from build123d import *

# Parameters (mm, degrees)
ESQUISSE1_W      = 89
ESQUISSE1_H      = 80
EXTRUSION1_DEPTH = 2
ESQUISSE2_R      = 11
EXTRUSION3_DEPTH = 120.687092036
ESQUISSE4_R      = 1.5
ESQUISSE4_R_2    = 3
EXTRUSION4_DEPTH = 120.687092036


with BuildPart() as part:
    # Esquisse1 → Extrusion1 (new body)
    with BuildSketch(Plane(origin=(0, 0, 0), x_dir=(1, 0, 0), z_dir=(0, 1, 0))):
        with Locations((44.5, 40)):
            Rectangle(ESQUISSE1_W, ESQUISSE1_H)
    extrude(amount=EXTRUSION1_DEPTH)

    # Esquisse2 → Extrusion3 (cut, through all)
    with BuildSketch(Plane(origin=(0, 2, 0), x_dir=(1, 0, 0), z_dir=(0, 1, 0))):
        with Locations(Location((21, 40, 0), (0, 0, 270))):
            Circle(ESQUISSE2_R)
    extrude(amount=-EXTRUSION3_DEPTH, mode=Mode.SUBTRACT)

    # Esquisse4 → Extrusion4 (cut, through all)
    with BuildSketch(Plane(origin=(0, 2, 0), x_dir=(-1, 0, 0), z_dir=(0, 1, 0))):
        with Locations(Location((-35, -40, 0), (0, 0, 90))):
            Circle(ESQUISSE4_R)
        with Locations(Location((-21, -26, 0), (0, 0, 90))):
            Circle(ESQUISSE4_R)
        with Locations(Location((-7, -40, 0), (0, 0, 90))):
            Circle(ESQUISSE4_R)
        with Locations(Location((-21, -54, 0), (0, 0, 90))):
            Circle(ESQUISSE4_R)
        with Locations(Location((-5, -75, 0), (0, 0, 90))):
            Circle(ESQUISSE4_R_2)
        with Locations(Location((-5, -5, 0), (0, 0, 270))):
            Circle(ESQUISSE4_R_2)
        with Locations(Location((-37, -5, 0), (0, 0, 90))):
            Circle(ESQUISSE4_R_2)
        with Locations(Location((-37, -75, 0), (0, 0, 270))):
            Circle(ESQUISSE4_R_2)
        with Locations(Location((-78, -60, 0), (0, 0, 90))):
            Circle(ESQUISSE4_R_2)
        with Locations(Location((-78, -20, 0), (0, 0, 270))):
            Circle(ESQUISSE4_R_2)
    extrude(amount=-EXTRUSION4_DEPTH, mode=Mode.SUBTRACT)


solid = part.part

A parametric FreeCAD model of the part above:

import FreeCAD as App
import Part
import Sketcher

doc = App.newDocument("Part")
body = doc.addObject("PartDesign::Body", "Body")

# Sketch on XZ plane
sketch1 = body.newObject("Sketcher::SketchObject", "Sketch")
sketch1.AttachmentSupport = (doc.getObject("XZ_Plane"), [""])
sketch1.MapMode = "FlatFace"
sketch1.addGeometry([
    Part.LineSegment(App.Vector(0, -80, 0), App.Vector(0, 0, 0)),
    Part.LineSegment(App.Vector(0, 0, 0), App.Vector(89, 0, 0)),
    Part.LineSegment(App.Vector(89, 0, 0), App.Vector(89, -80, 0)),
    Part.LineSegment(App.Vector(89, -80, 0), App.Vector(0, -80, 0)),
], False)
sketch1.addConstraint([
    Sketcher.Constraint("Coincident", 0, 2, 1, 1),
    Sketcher.Constraint("Coincident", 1, 2, 2, 1),
    Sketcher.Constraint("Coincident", 2, 2, 3, 1),
    Sketcher.Constraint("Coincident", 3, 2, 0, 1),
    Sketcher.Constraint("Vertical", 0),
    Sketcher.Constraint("Horizontal", 1),
    Sketcher.Constraint("Vertical", 2),
    Sketcher.Constraint("Horizontal", 3),
    Sketcher.Constraint("Coincident", 0, 2, -1, 1),
    Sketcher.Constraint("DistanceX", 1, 1, 1, 2, 89.0),
    Sketcher.Constraint("DistanceY", 0, 1, 0, 2, 80.0),
])
pad1 = body.newObject("PartDesign::Pad", "Pad")
pad1.Profile = sketch1
pad1.Length = 2
pad1.Reversed = True

# Sketch on XZ plane
sketch2 = body.newObject("Sketcher::SketchObject", "Sketch001")
sketch2.AttachmentSupport = (doc.getObject("XZ_Plane"), [""])
sketch2.MapMode = "FlatFace"
sketch2.AttachmentOffset = App.Placement(App.Vector(0, 0, -2), App.Rotation())
sketch2.addGeometry(Part.Circle(App.Vector(21, -40, 0), App.Vector(0, 0, 1), 11), False)
sketch2.addConstraint([
    Sketcher.Constraint("Diameter", 0, 22.0),
    Sketcher.Constraint("DistanceX", -1, 1, 0, 3, 21.0),
    Sketcher.Constraint("DistanceY", 0, 3, -1, 1, 40.0),
])
pocket1 = body.newObject("PartDesign::Pocket", "Pocket")
pocket1.Profile = sketch2
pocket1.Type = "ThroughAll"
pocket1.Reversed = True

# Sketch on XZ plane
sketch3 = body.newObject("Sketcher::SketchObject", "Sketch002")
sketch3.AttachmentSupport = (doc.getObject("XZ_Plane"), [""])
sketch3.MapMode = "FlatFace"
sketch3.AttachmentOffset = App.Placement(App.Vector(0, 0, -2), App.Rotation())
sketch3.addGeometry([
    Part.Circle(App.Vector(35, -40, 0), App.Vector(0, 0, 1), 1.5),  # 0
    Part.Circle(App.Vector(21, -26, 0), App.Vector(0, 0, 1), 1.5),  # 1
    Part.Circle(App.Vector(7, -40, 0), App.Vector(0, 0, 1), 1.5),  # 2
    Part.Circle(App.Vector(21, -54, 0), App.Vector(0, 0, 1), 1.5),  # 3
    Part.Circle(App.Vector(5, -75, 0), App.Vector(0, 0, 1), 3),  # 4
    Part.Circle(App.Vector(5, -5, 0), App.Vector(0, 0, 1), 3),  # 5
    Part.Circle(App.Vector(37, -5, 0), App.Vector(0, 0, 1), 3),  # 6
    Part.Circle(App.Vector(37, -75, 0), App.Vector(0, 0, 1), 3),  # 7
    Part.Circle(App.Vector(78, -60, 0), App.Vector(0, 0, 1), 3),  # 8
    Part.Circle(App.Vector(78, -20, 0), App.Vector(0, 0, 1), 3),  # 9
], False)
sketch3.addConstraint([
    Sketcher.Constraint("Equal", 0, 1),
    Sketcher.Constraint("Equal", 1, 2),
    Sketcher.Constraint("Equal", 2, 3),
    Sketcher.Constraint("Equal", 4, 5),
    Sketcher.Constraint("Equal", 5, 6),
    Sketcher.Constraint("Equal", 6, 7),
    Sketcher.Constraint("Equal", 7, 8),
    Sketcher.Constraint("Equal", 8, 9),
    Sketcher.Constraint("Horizontal", 0, 3, 2, 3),
    Sketcher.Constraint("Horizontal", 5, 3, 6, 3),
    Sketcher.Constraint("Horizontal", 4, 3, 7, 3),
    Sketcher.Constraint("Vertical", 1, 3, 3, 3),
    Sketcher.Constraint("Vertical", 4, 3, 5, 3),
    Sketcher.Constraint("Vertical", 6, 3, 7, 3),
    Sketcher.Constraint("Vertical", 8, 3, 9, 3),
    Sketcher.Constraint("Diameter", 0, 3.0),
    Sketcher.Constraint("Diameter", 4, 6.0),
    Sketcher.Constraint("DistanceX", -1, 1, 0, 3, 35.0),
    Sketcher.Constraint("DistanceY", 0, 3, -1, 1, 40.0),
    Sketcher.Constraint("DistanceX", -1, 1, 1, 3, 21.0),
    Sketcher.Constraint("DistanceY", 1, 3, -1, 1, 26.0),
    Sketcher.Constraint("DistanceX", -1, 1, 2, 3, 7.0),
    Sketcher.Constraint("DistanceY", 3, 3, -1, 1, 54.0),
    Sketcher.Constraint("DistanceX", -1, 1, 4, 3, 5.0),
    Sketcher.Constraint("DistanceY", 4, 3, -1, 1, 75.0),
    Sketcher.Constraint("DistanceY", 5, 3, -1, 1, 5.0),
    Sketcher.Constraint("DistanceX", -1, 1, 6, 3, 37.0),
    Sketcher.Constraint("DistanceX", -1, 1, 8, 3, 78.0),
    Sketcher.Constraint("DistanceY", 8, 3, -1, 1, 60.0),
    Sketcher.Constraint("DistanceY", 9, 3, -1, 1, 20.0),
])
pocket2 = body.newObject("PartDesign::Pocket", "Pocket001")
pocket2.Profile = sketch3
pocket2.Type = "ThroughAll"
pocket2.Reversed = True

doc.recompute()
